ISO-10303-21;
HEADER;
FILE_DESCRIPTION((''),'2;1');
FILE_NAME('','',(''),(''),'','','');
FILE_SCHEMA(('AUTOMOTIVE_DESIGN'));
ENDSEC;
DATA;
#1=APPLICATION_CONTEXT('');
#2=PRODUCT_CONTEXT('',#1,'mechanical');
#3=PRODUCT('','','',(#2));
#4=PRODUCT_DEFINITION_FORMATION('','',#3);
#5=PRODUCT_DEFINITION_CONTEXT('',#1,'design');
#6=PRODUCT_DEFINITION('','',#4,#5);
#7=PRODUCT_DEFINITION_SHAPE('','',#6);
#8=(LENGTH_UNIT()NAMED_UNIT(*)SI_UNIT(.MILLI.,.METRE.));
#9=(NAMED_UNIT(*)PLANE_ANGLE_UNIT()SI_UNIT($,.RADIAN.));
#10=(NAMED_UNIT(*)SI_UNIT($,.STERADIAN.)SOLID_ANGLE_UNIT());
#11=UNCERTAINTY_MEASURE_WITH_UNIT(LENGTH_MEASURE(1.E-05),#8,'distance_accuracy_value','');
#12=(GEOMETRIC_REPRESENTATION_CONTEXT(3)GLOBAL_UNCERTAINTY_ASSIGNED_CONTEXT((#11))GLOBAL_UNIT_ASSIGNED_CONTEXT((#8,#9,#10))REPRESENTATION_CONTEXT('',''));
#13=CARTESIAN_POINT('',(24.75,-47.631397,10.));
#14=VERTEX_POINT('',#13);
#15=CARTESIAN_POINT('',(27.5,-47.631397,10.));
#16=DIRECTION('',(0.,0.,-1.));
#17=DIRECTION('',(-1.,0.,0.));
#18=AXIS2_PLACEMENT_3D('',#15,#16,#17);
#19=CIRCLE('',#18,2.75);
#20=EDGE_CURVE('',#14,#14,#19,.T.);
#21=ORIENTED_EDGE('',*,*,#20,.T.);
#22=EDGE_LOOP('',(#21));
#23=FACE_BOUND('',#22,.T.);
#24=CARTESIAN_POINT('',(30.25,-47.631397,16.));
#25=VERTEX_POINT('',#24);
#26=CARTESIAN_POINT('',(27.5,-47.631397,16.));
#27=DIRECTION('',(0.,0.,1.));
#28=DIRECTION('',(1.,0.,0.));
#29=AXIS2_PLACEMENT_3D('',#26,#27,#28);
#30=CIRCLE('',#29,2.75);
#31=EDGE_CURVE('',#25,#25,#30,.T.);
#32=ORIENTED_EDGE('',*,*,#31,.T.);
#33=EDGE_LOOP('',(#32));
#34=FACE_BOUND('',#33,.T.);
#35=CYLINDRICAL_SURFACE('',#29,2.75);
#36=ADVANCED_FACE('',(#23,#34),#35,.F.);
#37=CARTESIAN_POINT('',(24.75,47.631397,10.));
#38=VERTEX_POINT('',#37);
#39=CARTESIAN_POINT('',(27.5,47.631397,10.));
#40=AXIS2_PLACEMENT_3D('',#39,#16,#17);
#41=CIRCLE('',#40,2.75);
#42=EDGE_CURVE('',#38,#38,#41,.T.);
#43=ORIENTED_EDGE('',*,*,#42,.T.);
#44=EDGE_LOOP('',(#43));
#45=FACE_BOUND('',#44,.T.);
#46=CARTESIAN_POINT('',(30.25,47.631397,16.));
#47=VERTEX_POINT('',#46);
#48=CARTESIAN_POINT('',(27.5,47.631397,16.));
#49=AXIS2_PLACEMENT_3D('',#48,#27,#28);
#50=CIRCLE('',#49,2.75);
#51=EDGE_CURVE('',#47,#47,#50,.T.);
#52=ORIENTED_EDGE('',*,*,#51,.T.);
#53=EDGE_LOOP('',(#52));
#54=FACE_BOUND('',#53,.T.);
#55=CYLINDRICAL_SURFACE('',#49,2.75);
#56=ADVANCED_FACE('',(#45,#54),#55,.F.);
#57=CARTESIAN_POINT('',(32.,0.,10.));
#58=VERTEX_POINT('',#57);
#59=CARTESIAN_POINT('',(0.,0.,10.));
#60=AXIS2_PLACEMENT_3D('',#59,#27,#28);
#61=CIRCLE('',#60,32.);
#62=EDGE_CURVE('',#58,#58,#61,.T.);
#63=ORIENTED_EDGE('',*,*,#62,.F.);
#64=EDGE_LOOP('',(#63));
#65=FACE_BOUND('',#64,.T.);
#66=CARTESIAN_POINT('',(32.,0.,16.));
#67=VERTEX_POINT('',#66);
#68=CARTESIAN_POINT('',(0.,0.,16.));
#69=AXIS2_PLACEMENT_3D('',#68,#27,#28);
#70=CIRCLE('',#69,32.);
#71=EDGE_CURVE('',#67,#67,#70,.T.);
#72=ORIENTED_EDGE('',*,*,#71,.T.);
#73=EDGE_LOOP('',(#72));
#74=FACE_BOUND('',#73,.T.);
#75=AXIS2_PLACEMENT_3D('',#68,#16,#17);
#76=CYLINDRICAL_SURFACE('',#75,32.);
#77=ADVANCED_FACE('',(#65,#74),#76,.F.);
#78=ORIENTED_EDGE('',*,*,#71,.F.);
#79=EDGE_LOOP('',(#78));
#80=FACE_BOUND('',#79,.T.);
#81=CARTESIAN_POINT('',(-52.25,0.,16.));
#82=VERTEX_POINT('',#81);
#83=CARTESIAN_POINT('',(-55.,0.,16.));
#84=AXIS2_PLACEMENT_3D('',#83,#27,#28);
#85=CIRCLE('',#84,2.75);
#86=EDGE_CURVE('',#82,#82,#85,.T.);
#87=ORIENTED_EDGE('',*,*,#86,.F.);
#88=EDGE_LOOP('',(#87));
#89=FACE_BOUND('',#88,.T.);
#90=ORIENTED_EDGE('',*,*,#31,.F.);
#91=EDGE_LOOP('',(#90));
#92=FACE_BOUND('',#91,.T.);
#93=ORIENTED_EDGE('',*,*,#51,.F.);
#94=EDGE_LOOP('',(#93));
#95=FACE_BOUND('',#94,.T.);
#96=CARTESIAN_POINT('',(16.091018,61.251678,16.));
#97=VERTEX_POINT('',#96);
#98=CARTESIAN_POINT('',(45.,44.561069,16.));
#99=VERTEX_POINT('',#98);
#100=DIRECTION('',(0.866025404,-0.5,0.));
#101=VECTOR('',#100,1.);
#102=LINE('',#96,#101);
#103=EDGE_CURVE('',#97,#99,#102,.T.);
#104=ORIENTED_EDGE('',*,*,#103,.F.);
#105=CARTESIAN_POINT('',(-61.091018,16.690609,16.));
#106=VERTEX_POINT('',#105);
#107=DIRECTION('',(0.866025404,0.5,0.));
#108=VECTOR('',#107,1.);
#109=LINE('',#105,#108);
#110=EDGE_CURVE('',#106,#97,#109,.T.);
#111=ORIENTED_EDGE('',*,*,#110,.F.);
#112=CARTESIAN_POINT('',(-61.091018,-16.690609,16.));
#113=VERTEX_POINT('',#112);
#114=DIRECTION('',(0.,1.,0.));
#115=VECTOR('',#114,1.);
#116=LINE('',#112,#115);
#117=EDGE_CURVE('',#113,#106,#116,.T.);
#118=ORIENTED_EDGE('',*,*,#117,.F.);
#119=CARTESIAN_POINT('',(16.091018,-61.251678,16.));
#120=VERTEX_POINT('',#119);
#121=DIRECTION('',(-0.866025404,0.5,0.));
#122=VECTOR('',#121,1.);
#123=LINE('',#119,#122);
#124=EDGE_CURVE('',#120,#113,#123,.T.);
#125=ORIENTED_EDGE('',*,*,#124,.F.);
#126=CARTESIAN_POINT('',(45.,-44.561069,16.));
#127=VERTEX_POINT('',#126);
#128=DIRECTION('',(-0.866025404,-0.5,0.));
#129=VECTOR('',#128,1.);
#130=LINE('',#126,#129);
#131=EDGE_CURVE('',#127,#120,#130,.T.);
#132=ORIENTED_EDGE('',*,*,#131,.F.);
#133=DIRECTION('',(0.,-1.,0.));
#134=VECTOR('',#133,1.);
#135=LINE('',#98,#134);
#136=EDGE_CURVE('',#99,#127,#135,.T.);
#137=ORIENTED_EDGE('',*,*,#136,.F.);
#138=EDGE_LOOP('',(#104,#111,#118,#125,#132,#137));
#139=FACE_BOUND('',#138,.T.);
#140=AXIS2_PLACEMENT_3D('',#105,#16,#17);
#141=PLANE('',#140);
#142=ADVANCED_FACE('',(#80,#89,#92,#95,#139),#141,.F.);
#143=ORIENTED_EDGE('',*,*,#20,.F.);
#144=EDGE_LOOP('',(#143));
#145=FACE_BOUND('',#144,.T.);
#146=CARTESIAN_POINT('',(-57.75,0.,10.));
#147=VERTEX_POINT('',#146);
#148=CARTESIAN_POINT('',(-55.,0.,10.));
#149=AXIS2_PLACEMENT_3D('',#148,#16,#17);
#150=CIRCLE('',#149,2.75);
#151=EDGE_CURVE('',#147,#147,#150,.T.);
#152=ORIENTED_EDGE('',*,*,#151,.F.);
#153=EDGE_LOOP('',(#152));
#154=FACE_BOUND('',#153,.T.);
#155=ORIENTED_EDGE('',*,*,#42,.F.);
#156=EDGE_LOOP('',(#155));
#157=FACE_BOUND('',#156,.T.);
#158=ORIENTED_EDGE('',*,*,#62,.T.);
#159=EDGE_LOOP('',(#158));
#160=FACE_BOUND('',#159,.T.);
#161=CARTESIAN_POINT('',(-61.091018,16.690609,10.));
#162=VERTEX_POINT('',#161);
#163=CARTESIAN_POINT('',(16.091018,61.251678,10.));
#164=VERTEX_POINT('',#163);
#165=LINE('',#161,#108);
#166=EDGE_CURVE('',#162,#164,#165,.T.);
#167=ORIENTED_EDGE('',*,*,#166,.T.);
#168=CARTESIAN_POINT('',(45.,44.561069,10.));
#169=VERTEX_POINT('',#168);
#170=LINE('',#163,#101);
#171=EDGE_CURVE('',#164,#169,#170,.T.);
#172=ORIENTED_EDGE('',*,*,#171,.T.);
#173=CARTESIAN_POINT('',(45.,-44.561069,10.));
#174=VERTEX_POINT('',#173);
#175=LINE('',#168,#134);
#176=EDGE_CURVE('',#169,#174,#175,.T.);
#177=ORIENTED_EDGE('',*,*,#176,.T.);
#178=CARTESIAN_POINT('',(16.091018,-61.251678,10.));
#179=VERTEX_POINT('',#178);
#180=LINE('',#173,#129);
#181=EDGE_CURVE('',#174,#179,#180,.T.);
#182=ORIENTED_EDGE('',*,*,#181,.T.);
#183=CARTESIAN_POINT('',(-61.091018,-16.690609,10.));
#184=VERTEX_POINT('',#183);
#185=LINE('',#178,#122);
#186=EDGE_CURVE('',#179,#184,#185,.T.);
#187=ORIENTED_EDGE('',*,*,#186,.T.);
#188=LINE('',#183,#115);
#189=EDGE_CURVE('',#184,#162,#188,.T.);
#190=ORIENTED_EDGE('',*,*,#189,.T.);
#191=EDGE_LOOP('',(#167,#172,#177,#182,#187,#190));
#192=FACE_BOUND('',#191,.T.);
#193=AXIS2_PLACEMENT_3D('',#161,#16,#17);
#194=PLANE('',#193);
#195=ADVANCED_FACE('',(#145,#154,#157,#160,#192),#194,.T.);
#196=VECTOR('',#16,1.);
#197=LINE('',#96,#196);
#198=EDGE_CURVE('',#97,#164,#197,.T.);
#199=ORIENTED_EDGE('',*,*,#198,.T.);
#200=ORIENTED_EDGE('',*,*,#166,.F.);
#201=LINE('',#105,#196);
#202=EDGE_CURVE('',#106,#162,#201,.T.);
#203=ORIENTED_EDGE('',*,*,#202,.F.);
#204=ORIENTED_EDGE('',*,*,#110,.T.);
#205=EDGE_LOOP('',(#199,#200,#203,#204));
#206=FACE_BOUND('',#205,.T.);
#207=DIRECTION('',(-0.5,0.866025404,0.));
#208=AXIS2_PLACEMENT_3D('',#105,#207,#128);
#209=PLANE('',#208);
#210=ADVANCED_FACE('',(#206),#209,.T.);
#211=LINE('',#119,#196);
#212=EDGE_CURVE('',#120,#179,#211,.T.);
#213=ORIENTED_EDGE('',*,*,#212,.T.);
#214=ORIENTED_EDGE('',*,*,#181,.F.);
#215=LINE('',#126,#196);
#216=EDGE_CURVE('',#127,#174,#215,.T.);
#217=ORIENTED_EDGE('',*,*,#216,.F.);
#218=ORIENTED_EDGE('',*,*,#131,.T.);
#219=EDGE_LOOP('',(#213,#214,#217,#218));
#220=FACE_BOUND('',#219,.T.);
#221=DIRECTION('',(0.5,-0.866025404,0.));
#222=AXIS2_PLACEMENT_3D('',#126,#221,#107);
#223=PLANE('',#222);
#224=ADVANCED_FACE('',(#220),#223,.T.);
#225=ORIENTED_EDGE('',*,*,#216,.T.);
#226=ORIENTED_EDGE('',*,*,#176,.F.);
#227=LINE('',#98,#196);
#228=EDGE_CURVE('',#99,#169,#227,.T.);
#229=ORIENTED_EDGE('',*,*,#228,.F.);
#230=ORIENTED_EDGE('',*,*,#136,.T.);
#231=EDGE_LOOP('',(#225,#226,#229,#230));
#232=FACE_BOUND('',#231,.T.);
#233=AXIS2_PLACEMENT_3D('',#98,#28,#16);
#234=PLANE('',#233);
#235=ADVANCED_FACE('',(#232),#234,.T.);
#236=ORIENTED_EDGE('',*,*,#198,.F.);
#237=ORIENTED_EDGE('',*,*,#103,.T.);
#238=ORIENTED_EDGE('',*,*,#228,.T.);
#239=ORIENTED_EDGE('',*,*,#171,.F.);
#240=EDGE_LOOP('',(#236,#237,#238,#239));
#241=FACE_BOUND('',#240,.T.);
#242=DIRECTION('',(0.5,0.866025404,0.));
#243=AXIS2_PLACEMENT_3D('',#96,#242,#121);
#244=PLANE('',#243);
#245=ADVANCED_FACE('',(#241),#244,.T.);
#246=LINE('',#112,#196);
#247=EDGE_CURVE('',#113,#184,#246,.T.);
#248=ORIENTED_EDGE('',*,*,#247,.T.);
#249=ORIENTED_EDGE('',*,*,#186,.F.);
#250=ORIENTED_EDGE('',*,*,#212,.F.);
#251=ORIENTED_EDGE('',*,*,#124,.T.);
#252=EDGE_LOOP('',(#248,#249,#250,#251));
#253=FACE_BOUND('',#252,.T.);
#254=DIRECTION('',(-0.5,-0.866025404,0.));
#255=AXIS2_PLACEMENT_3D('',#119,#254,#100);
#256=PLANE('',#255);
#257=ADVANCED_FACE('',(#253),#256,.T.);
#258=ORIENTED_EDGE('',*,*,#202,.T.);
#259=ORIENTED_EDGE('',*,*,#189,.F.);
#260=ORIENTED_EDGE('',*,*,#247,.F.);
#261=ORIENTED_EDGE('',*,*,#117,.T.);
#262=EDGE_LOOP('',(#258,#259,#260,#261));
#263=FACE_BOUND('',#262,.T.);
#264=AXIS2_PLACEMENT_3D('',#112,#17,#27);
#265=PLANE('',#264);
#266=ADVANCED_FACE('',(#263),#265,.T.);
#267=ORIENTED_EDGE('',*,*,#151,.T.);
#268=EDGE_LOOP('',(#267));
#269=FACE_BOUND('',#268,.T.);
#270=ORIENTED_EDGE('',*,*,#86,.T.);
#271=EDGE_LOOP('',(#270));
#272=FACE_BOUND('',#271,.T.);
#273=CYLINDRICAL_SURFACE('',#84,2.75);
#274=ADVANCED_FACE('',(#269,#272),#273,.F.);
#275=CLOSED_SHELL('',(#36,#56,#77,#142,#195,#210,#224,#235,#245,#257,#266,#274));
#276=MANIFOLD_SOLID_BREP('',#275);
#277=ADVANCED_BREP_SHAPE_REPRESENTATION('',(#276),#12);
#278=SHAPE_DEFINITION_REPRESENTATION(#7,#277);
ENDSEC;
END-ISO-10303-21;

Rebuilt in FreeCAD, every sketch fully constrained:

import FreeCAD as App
import Part
import Sketcher

V = App.Vector
Q = App.Units.Quantity

doc = App.newDocument("Part")
params = doc.addObject("Spreadsheet::Sheet", "Params")
for row, (alias, value) in enumerate([
    ("sketch1_diameter", "64 mm"),
    ("pad1_length", "6 mm"),
    ("sketch2_diameter", "5.5 mm"),
    ("hole_diameter", "5.5 mm"),
], start=1):
    params.set(f"A{row}", alias)
    params.set(f"B{row}", "=" + value)
    params.setAlias(f"B{row}", alias)

body = doc.addObject("PartDesign::Body", "Body")

sketch1 = body.newObject("Sketcher::SketchObject", "Sketch")
sketch1.AttachmentSupport = (doc.getObject("XY_Plane"), [""])
sketch1.MapMode = "FlatFace"
sketch1.AttachmentOffset = App.Placement(V(0, 0, 10), App.Rotation())
sketch1.addGeometry(Part.LineSegment(V(45, 44.561069, 0), V(16.091018, 61.251678, 0)), False)
sketch1.addGeometry(Part.LineSegment(V(16.091018, 61.251678, 0), V(-61.091018, 16.690609, 0)), False)
sketch1.addGeometry(Part.LineSegment(V(-61.091018, 16.690609, 0), V(-61.091018, -16.690609, 0)), False)
sketch1.addGeometry(Part.LineSegment(V(-61.091018, -16.690609, 0), V(16.091018, -61.251678, 0)), False)
sketch1.addGeometry(Part.LineSegment(V(16.091018, -61.251678, 0), V(45, -44.561069, 0)), False)
sketch1.addGeometry(Part.LineSegment(V(45, -44.561069, 0), V(45, 44.561069, 0)), False)
sketch1.addGeometry(Part.Circle(V(0, 0, 0), V(0, 0, 1), 32), False)
sketch1.addConstraint(Sketcher.Constraint("Coincident", 0, 2, 1, 1))
sketch1.addConstraint(Sketcher.Constraint("Coincident", 1, 2, 2, 1))
sketch1.addConstraint(Sketcher.Constraint("Coincident", 2, 2, 3, 1))
sketch1.addConstraint(Sketcher.Constraint("Coincident", 3, 2, 4, 1))
sketch1.addConstraint(Sketcher.Constraint("Coincident", 4, 2, 5, 1))
sketch1.addConstraint(Sketcher.Constraint("Coincident", 5, 2, 0, 1))
sketch1.addConstraint(Sketcher.Constraint("Vertical", 2))
sketch1.addConstraint(Sketcher.Constraint("Vertical", 5))
sketch1.addConstraint(Sketcher.Constraint("Coincident", 6, 3, -1, 1))
sketch1.addConstraint(Sketcher.Constraint("Symmetric", 0, 2, 3, 2, -1))
sketch1.addConstraint(Sketcher.Constraint("Parallel", 0, 3))
sketch1.addConstraint(Sketcher.Constraint("Parallel", 1, 4))
sketch1.addConstraint(Sketcher.Constraint("Equal", 1, 3))
sketch1.addConstraint(Sketcher.Constraint("Diameter", 6, Q("64 mm")))
sketch1.addConstraint(Sketcher.Constraint("Angle", 0, Q("150 deg")))
sketch1.addConstraint(Sketcher.Constraint("DistanceX", -1, 1, 4, 2, Q("45 mm")))
sketch1.addConstraint(Sketcher.Constraint("DistanceY", 5, 1, 5, 2, Q("89.122139 mm")))
sketch1.addConstraint(Sketcher.Constraint("Distance", 1, Q("89.122139 mm")))
sketch1.addConstraint(Sketcher.Constraint("DistanceY", 2, 2, 2, 1, Q("33.381217 mm")))
sketch1.setExpression("Constraints[13]", "Params.sketch1_diameter")
pad1 = body.newObject("PartDesign::Pad", "Pad")
pad1.Profile = sketch1
pad1.setExpression("Length", "Params.pad1_length")

sketch2 = body.newObject("Sketcher::SketchObject", "Sketch001")
sketch2.AttachmentSupport = (doc.getObject("XY_Plane"), [""])
sketch2.MapMode = "FlatFace"
sketch2.AttachmentOffset = App.Placement(V(0, 0, 16), App.Rotation())
sketch2.addGeometry(Part.Circle(V(-55, 0, 0), V(0, 0, 1), 2.75), False)
sketch2.addGeometry(Part.Circle(V(27.5, 47.631397, 0), V(0, 0, 1), 2.75), False)
sketch2.addGeometry(Part.Circle(V(27.5, -47.631397, 0), V(0, 0, 1), 2.75), False)
sketch2.addConstraint(Sketcher.Constraint("Equal", 0, 1))
sketch2.addConstraint(Sketcher.Constraint("Equal", 1, 2))
sketch2.addConstraint(Sketcher.Constraint("Symmetric", 1, 3, 2, 3, -1))
sketch2.addConstraint(Sketcher.Constraint("PointOnObject", 0, 3, -1))
sketch2.addConstraint(Sketcher.Constraint("Diameter", 0, Q("5.5 mm")))
sketch2.addConstraint(Sketcher.Constraint("DistanceX", 0, 3, -1, 1, Q("55 mm")))
sketch2.addConstraint(Sketcher.Constraint("DistanceX", -1, 1, 1, 3, Q("27.5 mm")))
sketch2.addConstraint(Sketcher.Constraint("DistanceY", -1, 1, 1, 3, Q("47.631397 mm")))
sketch2.setExpression("Constraints[4]", "Params.sketch2_diameter")
doc.recompute()
hole = body.newObject("PartDesign::Hole", "Hole")
hole.Profile = sketch2
hole.ThreadType = "None"
hole.setExpression("Diameter", "Params.hole_diameter")
hole.DepthType = "ThroughAll"

doc.recompute()
